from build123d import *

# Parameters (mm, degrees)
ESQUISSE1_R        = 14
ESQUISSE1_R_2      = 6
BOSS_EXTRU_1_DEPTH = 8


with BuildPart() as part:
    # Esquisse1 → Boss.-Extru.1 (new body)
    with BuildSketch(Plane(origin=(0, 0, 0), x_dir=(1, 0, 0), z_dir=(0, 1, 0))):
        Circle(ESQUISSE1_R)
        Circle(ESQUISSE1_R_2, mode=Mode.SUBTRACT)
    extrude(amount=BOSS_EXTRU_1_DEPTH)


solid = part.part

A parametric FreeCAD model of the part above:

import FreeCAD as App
import Part
import Sketcher
from FreeCAD import Vector

doc = App.newDocument("Part")
body = doc.addObject("PartDesign::Body", "Body")

# Sketch on XZ plane
sketch1 = doc.addObject("Sketcher::SketchObject", "Sketch")
body.addObject(sketch1)
sketch1.AttachmentSupport = (doc.XZ_Plane, [""])
sketch1.MapMode = "FlatFace"
sketch1.addGeometry(Part.Circle(Vector(0, 0, 0), Vector(0, 0, 1), 14), False)
sketch1.addGeometry(Part.Circle(Vector(0, 0, 0), Vector(0, 0, 1), 6), False)
sketch1.addConstraint(Sketcher.Constraint("Coincident", 0, 3, -1, 1))
sketch1.addConstraint(Sketcher.Constraint("Coincident", 1, 3, -1, 1))
sketch1.addConstraint(Sketcher.Constraint("Diameter", 0, 28.0))
sketch1.addConstraint(Sketcher.Constraint("Diameter", 1, 12.0))
pad1 = doc.addObject("PartDesign::Pad", "Pad")
body.addObject(pad1)
pad1.Profile = sketch1
pad1.Length = 8
pad1.Reversed = True

doc.recompute()
